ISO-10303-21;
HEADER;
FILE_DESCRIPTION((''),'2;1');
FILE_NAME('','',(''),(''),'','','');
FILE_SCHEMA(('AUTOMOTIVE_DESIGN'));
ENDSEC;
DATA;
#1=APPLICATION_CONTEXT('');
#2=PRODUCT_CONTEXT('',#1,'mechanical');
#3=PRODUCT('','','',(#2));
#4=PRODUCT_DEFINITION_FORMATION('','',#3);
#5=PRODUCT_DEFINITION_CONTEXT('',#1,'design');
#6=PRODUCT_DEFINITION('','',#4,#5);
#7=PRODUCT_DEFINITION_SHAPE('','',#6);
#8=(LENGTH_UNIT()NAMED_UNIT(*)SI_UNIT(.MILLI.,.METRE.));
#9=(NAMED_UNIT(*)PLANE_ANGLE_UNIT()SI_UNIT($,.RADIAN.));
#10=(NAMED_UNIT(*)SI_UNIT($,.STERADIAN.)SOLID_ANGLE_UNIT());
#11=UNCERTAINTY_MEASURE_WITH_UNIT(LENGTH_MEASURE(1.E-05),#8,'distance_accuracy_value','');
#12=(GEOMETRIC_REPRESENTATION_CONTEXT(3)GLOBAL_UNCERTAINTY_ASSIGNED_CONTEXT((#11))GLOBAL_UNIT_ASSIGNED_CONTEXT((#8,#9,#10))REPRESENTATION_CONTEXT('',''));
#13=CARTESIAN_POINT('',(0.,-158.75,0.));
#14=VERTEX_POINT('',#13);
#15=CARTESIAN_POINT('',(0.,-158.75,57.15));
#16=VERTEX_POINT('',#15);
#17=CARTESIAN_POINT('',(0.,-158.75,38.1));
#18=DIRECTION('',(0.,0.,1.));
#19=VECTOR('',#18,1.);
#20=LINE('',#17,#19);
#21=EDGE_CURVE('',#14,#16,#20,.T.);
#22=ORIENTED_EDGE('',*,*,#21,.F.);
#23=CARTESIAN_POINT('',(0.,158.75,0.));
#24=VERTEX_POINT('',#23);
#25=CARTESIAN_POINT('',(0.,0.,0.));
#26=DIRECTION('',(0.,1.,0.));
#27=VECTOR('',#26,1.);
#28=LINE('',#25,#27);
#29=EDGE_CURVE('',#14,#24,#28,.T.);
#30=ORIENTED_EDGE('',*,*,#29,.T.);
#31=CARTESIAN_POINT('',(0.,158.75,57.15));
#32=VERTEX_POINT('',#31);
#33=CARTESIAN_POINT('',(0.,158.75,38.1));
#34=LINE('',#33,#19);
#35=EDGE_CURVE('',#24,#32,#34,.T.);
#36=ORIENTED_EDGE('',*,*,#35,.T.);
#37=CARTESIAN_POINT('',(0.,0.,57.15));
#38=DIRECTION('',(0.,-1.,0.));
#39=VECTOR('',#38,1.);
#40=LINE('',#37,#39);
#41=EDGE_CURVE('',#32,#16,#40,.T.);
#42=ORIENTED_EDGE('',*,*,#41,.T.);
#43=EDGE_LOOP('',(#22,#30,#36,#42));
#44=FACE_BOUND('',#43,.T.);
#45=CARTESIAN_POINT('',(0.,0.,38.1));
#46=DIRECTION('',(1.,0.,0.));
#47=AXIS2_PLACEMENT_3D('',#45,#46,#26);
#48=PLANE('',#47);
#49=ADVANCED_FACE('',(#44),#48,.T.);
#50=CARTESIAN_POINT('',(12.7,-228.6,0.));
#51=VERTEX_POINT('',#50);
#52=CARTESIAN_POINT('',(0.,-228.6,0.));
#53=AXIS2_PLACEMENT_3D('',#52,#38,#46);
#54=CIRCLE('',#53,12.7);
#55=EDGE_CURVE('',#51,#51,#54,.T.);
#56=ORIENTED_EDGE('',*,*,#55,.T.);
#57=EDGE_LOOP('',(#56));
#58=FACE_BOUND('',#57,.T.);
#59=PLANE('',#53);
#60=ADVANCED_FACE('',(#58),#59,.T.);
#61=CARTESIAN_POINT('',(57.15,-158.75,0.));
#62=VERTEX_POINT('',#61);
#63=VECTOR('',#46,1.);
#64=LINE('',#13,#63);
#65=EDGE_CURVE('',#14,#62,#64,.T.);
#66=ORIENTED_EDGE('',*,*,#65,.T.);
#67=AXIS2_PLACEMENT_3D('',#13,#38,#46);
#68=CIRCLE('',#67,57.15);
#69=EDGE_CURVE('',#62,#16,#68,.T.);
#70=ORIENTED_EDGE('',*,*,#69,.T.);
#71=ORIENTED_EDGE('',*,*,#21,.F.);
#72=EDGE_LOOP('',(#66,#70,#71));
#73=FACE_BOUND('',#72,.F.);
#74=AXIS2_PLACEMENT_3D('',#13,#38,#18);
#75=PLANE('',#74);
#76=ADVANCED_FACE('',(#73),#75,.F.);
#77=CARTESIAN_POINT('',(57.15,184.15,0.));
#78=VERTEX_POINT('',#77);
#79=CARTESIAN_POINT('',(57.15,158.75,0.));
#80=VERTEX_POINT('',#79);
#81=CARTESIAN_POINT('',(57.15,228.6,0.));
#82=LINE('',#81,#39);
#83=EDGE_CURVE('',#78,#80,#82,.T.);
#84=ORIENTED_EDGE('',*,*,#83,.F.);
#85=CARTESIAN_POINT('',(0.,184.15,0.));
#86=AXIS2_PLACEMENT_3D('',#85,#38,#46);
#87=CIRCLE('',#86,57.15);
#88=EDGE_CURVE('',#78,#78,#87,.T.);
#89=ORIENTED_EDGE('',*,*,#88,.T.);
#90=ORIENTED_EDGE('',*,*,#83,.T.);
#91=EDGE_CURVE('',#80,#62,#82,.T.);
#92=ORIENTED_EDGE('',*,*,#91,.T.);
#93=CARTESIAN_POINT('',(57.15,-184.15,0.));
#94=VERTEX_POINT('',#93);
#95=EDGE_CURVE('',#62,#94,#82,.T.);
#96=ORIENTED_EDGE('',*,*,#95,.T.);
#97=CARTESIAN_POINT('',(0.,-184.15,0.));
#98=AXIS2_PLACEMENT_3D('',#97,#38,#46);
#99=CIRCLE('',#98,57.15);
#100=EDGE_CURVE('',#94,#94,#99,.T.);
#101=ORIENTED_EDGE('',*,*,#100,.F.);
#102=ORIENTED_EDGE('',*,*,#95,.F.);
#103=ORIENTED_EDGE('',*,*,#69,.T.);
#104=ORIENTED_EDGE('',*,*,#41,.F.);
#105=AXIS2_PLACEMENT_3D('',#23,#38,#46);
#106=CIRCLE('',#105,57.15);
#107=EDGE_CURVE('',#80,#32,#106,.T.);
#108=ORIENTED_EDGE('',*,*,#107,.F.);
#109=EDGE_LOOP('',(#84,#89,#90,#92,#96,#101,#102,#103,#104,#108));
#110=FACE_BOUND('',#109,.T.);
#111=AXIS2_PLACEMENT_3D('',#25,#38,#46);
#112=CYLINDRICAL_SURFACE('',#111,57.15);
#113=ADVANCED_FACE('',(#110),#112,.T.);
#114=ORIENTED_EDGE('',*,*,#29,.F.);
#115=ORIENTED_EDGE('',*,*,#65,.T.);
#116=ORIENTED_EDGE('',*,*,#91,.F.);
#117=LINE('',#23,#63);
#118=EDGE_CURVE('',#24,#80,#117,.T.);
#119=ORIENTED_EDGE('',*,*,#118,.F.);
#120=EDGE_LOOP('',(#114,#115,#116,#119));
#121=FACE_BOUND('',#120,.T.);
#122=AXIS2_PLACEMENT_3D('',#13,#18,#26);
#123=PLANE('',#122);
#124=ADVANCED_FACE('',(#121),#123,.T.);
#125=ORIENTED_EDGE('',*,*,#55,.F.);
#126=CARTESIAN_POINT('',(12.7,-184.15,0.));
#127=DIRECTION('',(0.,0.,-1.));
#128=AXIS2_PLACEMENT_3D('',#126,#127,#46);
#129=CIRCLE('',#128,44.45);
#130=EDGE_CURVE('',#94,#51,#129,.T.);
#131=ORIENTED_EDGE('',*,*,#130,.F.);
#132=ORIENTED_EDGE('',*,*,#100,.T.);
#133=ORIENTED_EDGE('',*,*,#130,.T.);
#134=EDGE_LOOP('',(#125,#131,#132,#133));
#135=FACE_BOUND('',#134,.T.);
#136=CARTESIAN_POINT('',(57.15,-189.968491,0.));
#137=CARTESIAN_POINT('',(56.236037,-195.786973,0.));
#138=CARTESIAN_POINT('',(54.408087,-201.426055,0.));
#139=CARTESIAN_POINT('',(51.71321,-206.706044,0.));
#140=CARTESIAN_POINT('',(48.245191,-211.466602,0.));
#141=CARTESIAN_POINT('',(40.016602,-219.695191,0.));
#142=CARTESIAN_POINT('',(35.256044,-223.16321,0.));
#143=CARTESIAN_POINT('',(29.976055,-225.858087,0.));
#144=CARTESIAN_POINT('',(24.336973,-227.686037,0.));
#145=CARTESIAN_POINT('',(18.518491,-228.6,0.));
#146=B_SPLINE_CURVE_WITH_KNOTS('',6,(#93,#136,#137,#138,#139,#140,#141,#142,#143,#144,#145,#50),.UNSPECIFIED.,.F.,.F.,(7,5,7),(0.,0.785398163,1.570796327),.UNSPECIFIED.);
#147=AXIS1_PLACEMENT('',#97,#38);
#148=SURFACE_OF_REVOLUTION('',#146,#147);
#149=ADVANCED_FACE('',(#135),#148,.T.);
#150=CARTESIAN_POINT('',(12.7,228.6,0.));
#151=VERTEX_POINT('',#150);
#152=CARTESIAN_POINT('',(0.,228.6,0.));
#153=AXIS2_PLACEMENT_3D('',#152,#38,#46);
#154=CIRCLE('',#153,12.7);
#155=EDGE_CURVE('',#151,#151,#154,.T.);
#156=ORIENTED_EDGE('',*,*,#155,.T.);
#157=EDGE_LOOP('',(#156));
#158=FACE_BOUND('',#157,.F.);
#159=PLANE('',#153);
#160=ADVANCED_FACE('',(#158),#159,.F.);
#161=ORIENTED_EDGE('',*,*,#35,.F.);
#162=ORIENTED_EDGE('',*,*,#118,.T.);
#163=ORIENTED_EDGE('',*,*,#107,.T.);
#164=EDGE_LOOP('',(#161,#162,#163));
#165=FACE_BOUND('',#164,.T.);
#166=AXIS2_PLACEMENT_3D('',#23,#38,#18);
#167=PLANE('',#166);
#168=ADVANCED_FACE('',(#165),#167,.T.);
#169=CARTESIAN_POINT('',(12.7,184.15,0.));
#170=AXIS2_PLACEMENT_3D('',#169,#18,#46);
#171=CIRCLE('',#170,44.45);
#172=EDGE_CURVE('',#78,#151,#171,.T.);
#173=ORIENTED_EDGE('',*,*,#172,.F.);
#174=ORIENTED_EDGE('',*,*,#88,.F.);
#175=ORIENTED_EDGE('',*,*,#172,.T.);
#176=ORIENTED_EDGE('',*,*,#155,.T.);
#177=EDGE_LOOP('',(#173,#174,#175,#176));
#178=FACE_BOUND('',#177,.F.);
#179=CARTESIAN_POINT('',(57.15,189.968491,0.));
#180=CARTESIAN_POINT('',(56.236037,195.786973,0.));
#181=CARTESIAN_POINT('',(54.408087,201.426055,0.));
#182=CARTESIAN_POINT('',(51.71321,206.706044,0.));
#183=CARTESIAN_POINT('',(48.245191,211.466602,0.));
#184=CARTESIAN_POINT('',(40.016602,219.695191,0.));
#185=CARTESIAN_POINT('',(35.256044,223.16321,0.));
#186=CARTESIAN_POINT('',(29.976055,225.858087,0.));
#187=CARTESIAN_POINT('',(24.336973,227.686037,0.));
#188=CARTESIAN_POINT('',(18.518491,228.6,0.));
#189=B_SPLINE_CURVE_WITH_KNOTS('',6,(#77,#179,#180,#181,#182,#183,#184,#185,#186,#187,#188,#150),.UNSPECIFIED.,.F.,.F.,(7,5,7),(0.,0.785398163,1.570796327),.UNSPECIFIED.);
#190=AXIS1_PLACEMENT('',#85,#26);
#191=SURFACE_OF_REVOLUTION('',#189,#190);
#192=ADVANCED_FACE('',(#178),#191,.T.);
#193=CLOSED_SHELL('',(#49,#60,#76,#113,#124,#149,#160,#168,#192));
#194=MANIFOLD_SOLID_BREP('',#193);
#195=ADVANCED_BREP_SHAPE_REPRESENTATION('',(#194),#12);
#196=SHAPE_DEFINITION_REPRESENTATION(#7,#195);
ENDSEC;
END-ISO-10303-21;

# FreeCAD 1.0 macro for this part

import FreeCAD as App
import Part
import Sketcher
from FreeCAD import Vector
Q = App.Units.Quantity


def edges_at(feature, points):
    """Names of the edges that pass closest to the given points."""
    edges = feature.Shape.Edges
    near = lambda p: min(range(len(edges)), key=lambda i: edges[i].distToShape(Part.Vertex(*p))[0])
    return sorted({f"Edge{near(p) + 1}" for p in points})


def add_polygon(sketch, points):
    """Adds a closed chain of lines whose ends are joined by coincident constraints."""
    first, n = sketch.GeometryCount, len(points)
    for a, b in zip(points, points[1:] + points[:1]):
        sketch.addGeometry(Part.LineSegment(App.Vector(*a, 0), App.Vector(*b, 0)), False)
    for i in range(n):
        sketch.addConstraint(Sketcher.Constraint("Coincident", first + i, 2, first + (i + 1) % n, 1))

doc = App.newDocument("Part")
params = doc.addObject("Spreadsheet::Sheet", "Params")
for row, (alias, value) in enumerate([
    ("sketch1_diameter", "4.5 in"),
    ("pad1_length", "18 in"),
    ("fillet_radius", "1.75 in"),
    ("sketch2_height", "3 in"),
    ("sketch2_width", "12.5 in"),
], start=1):
    params.set(f"A{row}", alias)
    params.set(f"B{row}", "=" + value)
    params.setAlias(f"B{row}", alias)

body = doc.addObject("PartDesign::Body", "Body")

# Sketch on XZ plane
sketch1 = body.newObject("Sketcher::SketchObject", "Sketch")
sketch1.AttachmentSupport = (doc.getObject("XZ_Plane"), [""])
sketch1.MapMode = "FlatFace"
sketch1.addGeometry(Part.Circle(Vector(0, 0, 0), Vector(0, 0, 1), 57), False)
sketch1.addConstraint([
    Sketcher.Constraint("Coincident", 0, 3, -1, 1),
    Sketcher.Constraint("Diameter", 0, Q("4.5 in")),
])
sketch1.setExpression("Constraints[1]", "Params.sketch1_diameter")
pad1 = body.newObject("PartDesign::Pad", "Pad")
pad1.Profile = sketch1
pad1.setExpression("Length", "Params.pad1_length")
pad1.Midplane = True
doc.recompute()

fillet = body.newObject("PartDesign::Fillet", "Fillet")
fillet.Base = (pad1, edges_at(pad1, [(-57.15, -228.6, 0), (-57.15, 228.6, 0)]))
fillet.setExpression("Radius", "Params.fillet_radius")

# Sketch on YZ plane
sketch2 = body.newObject("Sketcher::SketchObject", "Sketch001")
sketch2.AttachmentSupport = (doc.getObject("YZ_Plane"), [""])
sketch2.MapMode = "FlatFace"
add_polygon(sketch2, [(-159, 76), (-159, 0), (159, 0), (159, 76)])  # lines 0-3
sketch2.addConstraint([
    Sketcher.Constraint("Vertical", 0),
    Sketcher.Constraint("Horizontal", 1),
    Sketcher.Constraint("Vertical", 2),
    Sketcher.Constraint("Horizontal", 3),
    Sketcher.Constraint("Symmetric", 0, 2, 1, 2, -1, 1),
    Sketcher.Constraint("DistanceY", 0, 2, 0, 1, Q("3 in")),
    Sketcher.Constraint("DistanceX", 1, 1, 1, 2, Q("12.5 in")),
])
sketch2.setExpression("Constraints[9]", "Params.sketch2_height")
sketch2.setExpression("Constraints[10]", "Params.sketch2_width")
pocket1 = body.newObject("PartDesign::Pocket", "Pocket")
pocket1.Profile = sketch2
pocket1.Type = "ThroughAll"
pocket1.Reversed = True

doc.recompute()
